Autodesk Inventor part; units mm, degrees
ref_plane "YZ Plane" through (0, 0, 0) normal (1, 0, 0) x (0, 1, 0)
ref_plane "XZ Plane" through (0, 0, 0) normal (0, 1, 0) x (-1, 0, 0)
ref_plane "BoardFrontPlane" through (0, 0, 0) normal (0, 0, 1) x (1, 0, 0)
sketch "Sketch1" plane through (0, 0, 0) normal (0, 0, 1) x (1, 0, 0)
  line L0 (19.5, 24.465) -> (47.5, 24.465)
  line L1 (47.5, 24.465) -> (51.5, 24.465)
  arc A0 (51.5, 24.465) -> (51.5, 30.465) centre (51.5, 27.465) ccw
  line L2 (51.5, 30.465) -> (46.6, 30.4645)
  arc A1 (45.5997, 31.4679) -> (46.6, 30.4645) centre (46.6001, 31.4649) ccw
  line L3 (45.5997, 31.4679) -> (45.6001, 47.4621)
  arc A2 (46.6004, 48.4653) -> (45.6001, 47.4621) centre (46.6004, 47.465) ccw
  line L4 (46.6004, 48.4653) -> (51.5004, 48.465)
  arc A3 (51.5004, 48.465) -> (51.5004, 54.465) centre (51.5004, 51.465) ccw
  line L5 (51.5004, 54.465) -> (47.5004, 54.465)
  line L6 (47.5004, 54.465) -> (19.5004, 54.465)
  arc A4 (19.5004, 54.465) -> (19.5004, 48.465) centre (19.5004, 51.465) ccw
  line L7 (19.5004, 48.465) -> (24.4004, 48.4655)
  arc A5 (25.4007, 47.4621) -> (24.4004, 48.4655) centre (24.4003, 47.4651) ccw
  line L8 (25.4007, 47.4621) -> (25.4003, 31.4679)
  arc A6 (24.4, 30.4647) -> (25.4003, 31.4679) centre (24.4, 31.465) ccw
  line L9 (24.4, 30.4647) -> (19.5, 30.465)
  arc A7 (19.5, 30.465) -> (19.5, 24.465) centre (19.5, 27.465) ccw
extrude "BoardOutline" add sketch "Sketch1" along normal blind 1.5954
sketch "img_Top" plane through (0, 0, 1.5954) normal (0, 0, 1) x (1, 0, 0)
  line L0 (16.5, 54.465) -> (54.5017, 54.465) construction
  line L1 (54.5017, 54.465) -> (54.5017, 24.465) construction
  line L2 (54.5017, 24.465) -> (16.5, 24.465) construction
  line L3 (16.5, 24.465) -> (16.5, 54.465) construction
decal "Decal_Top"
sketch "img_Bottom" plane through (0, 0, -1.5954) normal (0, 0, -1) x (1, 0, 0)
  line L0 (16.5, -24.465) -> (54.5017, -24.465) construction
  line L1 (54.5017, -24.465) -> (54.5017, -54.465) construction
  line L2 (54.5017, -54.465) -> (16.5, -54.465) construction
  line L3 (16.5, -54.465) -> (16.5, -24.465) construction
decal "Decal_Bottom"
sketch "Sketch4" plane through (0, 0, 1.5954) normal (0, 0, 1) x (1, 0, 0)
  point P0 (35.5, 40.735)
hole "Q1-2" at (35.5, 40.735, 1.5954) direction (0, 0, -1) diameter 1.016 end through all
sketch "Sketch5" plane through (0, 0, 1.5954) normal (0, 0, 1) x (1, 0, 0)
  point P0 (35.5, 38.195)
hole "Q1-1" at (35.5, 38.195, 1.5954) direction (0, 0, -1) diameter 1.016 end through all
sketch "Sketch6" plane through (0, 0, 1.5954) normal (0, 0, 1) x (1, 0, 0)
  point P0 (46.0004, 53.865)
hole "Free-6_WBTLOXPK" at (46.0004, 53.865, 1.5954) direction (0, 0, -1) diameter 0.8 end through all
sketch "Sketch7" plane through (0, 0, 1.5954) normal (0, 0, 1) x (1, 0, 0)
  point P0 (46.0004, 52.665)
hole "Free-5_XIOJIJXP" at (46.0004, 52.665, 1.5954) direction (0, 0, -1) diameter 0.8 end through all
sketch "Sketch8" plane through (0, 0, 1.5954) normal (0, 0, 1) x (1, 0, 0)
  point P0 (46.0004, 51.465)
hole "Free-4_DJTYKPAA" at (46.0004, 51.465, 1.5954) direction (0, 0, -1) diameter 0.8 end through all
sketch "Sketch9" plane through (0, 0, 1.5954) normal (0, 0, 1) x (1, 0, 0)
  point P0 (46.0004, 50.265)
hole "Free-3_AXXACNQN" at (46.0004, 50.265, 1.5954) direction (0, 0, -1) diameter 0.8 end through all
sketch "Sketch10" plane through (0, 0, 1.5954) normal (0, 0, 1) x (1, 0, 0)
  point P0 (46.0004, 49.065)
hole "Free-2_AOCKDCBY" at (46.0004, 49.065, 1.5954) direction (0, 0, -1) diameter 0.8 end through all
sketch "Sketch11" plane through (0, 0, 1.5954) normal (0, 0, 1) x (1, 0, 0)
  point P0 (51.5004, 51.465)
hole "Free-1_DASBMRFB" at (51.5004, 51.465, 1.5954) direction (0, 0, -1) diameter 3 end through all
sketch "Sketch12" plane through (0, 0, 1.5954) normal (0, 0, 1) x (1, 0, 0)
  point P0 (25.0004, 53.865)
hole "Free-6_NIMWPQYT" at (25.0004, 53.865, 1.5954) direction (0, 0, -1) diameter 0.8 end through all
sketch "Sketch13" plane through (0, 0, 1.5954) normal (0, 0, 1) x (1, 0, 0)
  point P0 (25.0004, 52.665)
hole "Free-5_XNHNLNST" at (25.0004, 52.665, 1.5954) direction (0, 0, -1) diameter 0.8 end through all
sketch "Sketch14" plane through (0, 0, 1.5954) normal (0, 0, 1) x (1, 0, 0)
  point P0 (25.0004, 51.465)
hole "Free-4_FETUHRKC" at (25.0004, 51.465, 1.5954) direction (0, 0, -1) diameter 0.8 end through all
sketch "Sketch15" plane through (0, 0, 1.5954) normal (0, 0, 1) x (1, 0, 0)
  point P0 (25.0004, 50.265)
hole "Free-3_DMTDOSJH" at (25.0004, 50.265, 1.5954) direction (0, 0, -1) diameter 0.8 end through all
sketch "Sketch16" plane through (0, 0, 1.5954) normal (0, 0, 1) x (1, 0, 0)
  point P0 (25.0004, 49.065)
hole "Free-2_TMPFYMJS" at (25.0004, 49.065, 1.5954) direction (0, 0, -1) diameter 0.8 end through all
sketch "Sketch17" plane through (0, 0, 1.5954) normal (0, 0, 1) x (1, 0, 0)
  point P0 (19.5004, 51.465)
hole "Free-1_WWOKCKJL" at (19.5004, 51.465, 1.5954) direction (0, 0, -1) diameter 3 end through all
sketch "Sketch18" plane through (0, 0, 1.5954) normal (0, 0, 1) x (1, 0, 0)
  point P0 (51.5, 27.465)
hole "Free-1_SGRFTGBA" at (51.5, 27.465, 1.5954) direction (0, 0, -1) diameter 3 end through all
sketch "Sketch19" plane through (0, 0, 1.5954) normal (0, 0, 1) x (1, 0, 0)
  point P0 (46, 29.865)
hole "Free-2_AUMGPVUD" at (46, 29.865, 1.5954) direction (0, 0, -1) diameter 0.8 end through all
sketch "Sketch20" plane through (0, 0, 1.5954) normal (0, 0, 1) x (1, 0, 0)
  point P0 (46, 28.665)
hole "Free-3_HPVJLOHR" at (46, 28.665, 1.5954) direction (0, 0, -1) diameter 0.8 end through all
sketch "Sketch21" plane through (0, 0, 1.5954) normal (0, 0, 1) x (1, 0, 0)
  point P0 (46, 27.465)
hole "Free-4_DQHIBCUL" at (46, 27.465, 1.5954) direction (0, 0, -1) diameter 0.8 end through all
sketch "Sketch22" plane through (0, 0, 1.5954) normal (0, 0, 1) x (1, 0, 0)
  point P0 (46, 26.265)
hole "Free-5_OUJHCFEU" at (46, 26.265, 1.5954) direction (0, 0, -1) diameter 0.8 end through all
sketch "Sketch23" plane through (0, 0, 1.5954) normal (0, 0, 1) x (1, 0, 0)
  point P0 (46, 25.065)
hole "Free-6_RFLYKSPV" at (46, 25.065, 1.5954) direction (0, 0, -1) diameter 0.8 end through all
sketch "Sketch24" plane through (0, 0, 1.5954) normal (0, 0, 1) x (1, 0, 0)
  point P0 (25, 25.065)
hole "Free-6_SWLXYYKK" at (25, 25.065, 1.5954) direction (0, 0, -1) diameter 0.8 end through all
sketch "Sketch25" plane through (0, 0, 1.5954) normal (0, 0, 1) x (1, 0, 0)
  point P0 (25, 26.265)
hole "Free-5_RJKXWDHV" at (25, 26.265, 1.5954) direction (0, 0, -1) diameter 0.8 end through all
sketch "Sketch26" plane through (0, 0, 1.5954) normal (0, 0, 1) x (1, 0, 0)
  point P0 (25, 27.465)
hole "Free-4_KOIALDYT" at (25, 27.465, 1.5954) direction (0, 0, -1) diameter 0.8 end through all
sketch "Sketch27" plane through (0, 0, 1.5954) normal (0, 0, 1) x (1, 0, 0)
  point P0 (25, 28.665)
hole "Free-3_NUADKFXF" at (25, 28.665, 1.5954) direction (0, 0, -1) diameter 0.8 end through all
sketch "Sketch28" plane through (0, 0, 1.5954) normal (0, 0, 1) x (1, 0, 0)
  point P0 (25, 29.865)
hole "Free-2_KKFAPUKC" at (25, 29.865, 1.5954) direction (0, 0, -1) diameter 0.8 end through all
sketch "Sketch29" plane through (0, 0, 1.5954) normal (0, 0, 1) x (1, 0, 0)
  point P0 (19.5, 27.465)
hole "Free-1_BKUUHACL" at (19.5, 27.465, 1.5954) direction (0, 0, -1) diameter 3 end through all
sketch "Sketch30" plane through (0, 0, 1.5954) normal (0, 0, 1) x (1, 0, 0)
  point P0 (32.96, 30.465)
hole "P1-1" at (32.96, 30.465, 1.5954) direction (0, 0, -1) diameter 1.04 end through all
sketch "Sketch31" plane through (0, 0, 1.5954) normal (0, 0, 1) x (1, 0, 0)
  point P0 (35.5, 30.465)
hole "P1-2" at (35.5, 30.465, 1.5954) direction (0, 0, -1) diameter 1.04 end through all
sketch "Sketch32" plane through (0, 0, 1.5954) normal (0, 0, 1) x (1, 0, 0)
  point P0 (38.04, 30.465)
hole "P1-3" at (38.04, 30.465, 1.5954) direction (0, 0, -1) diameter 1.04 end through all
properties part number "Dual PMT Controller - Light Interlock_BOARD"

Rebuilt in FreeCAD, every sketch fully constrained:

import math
import FreeCAD as App
import Part
import Sketcher

V = App.Vector

doc = App.newDocument("Part")
body = doc.addObject("PartDesign::Body", "Body")

# Sketch on XY plane
sketch1 = doc.addObject("Sketcher::SketchObject", "Sketch")
body.addObject(sketch1)
sketch1.AttachmentSupport = (doc.XY_Plane, [""])
sketch1.MapMode = "FlatFace"
sketch1.addGeometry([
    Part.ArcOfCircle(Part.Circle(V(19.5, 27.465, 0), V(0, 0, 1), 3), math.radians(90), math.radians(270)),  # 0
    Part.LineSegment(V(19.5, 24.465, 0), V(51.5, 24.465, 0)),  # 1
    Part.ArcOfCircle(Part.Circle(V(51.5, 27.465, 0), V(0, 0, 1), 3), math.radians(-90), math.radians(90)),  # 2
    Part.LineSegment(V(51.5, 30.465, 0), V(46.6, 30.4645, 0)),  # 3
    Part.ArcOfCircle(Part.Circle(V(46.6001, 31.4649, 0), V(0, 0, 1), 1.000404), math.radians(179.828182), math.radians(269.994273)),  # 4
    Part.LineSegment(V(45.5997, 31.4679, 0), V(45.6001, 47.4621, 0)),  # 5
    Part.ArcOfCircle(Part.Circle(V(46.6004, 47.465, 0), V(0, 0, 1), 1.0003), math.radians(90), math.radians(180.166107)),  # 6
    Part.LineSegment(V(46.6004, 48.4653, 0), V(51.5004, 48.465, 0)),  # 7
    Part.ArcOfCircle(Part.Circle(V(51.5004, 51.465, 0), V(0, 0, 1), 3), math.radians(-90), math.radians(90)),  # 8
    Part.LineSegment(V(51.5004, 54.465, 0), V(19.5004, 54.465, 0)),  # 9
    Part.ArcOfCircle(Part.Circle(V(19.5004, 51.465, 0), V(0, 0, 1), 3), math.radians(90), math.radians(270)),  # 10
    Part.LineSegment(V(19.5004, 48.465, 0), V(24.4004, 48.4655, 0)),  # 11
    Part.ArcOfCircle(Part.Circle(V(24.4003, 47.4651, 0), V(0, 0, 1), 1.000404), math.radians(-0.171818), math.radians(89.994273)),  # 12
    Part.LineSegment(V(25.4007, 47.4621, 0), V(25.4003, 31.4679, 0)),  # 13
    Part.ArcOfCircle(Part.Circle(V(24.4, 31.465, 0), V(0, 0, 1), 1.0003), math.radians(-90), math.radians(0.166107)),  # 14
    Part.LineSegment(V(24.4, 30.4647, 0), V(19.5, 30.465, 0)),  # 15
], False)
sketch1.addConstraint([
    Sketcher.Constraint("Tangent", 0, 2, 1, 1),
    Sketcher.Constraint("Tangent", 1, 2, 2, 1),
    Sketcher.Constraint("Tangent", 2, 2, 3, 1),
    Sketcher.Constraint("Tangent", 3, 2, 4, 2),
    Sketcher.Constraint("Coincident", 4, 1, 5, 1),
    Sketcher.Constraint("Coincident", 5, 2, 6, 2),
    Sketcher.Constraint("Tangent", 6, 1, 7, 1),
    Sketcher.Constraint("Tangent", 7, 2, 8, 1),
    Sketcher.Constraint("Tangent", 8, 2, 9, 1),
    Sketcher.Constraint("Tangent", 9, 2, 10, 1),
    Sketcher.Constraint("Tangent", 10, 2, 11, 1),
    Sketcher.Constraint("Tangent", 11, 2, 12, 2),
    Sketcher.Constraint("Coincident", 12, 1, 13, 1),
    Sketcher.Constraint("Coincident", 13, 2, 14, 2),
    Sketcher.Constraint("Tangent", 14, 1, 15, 1),
    Sketcher.Constraint("Tangent", 15, 2, 0, 1),
    Sketcher.Constraint("Horizontal", 1),
    Sketcher.Constraint("Horizontal", 9),
    Sketcher.Constraint("Equal", 0, 2),
    Sketcher.Constraint("Equal", 4, 6),
    Sketcher.Constraint("Equal", 2, 8),
    Sketcher.Constraint("Equal", 8, 10),
    Sketcher.Constraint("Equal", 6, 12),
    Sketcher.Constraint("Equal", 12, 14),
    Sketcher.Constraint("Perpendicular", 3, 5),
    Sketcher.Constraint("Perpendicular", 5, 7),
    Sketcher.Constraint("Parallel", 7, 11),
    Sketcher.Constraint("Perpendicular", 11, 13),
    Sketcher.Constraint("Perpendicular", 13, 15),
    Sketcher.Constraint("Horizontal", 6, 3, 12, 3),
    Sketcher.Constraint("Horizontal", 5, 2, 12, 1),
    Sketcher.Constraint("Horizontal", 4, 1, 13, 2),
    Sketcher.Constraint("Equal", 1, 9),
    Sketcher.Constraint("Equal", 3, 7),
    Sketcher.Constraint("Equal", 7, 11),
    Sketcher.Constraint("Equal", 11, 15),
    Sketcher.Constraint("Radius", 0, 3.0),
    Sketcher.Constraint("DistanceX", 1, 1, 1, 2, 32.0),
    Sketcher.Constraint("DistanceY", 2, 3, 4, 3, 4.0),
    Sketcher.Constraint("DistanceY", 4, 3, 6, 3, 16.0),
    Sketcher.Constraint("Distance", 3, 4.9),
    Sketcher.Constraint("DistanceX", -1, 1, 0, 3, 19.5),
    Sketcher.Constraint("DistanceY", -1, 1, 0, 3, 27.465),
    Sketcher.Constraint("DistanceY", -1, 1, 4, 1, 31.468),
])
pad1 = doc.addObject("PartDesign::Pad", "Pad")
body.addObject(pad1)
pad1.Profile = sketch1
pad1.Length = 1.5954

# Sketch on XY plane
sketch2 = doc.addObject("Sketcher::SketchObject", "Sketch001")
body.addObject(sketch2)
sketch2.AttachmentSupport = (doc.XY_Plane, [""])
sketch2.MapMode = "FlatFace"
sketch2.AttachmentOffset = App.Placement(V(0, 0, 1.5954), App.Rotation())
sketch2.addGeometry(Part.Circle(V(35.5, 40.735, 0), V(0, 0, 1), 0.508), False)
sketch2.addConstraint([
    Sketcher.Constraint("Diameter", 0, 1.016),
    Sketcher.Constraint("DistanceX", -1, 1, 0, 3, 35.5),
    Sketcher.Constraint("DistanceY", -1, 1, 0, 3, 40.735),
])
doc.recompute()
hole = doc.addObject("PartDesign::Hole", "Hole")
body.addObject(hole)
hole.Profile = sketch2
hole.ThreadType = "None"
hole.Diameter = 1.016
hole.DepthType = "ThroughAll"

# Sketch on XY plane
sketch3 = doc.addObject("Sketcher::SketchObject", "Sketch002")
body.addObject(sketch3)
sketch3.AttachmentSupport = (doc.XY_Plane, [""])
sketch3.MapMode = "FlatFace"
sketch3.AttachmentOffset = App.Placement(V(0, 0, 1.5954), App.Rotation())
sketch3.addGeometry(Part.Circle(V(35.5, 38.195, 0), V(0, 0, 1), 0.508), False)
sketch3.addConstraint([
    Sketcher.Constraint("Diameter", 0, 1.016),
    Sketcher.Constraint("DistanceX", -1, 1, 0, 3, 35.5),
    Sketcher.Constraint("DistanceY", -1, 1, 0, 3, 38.195),
])
doc.recompute()
hole2 = doc.addObject("PartDesign::Hole", "Hole001")
body.addObject(hole2)
hole2.Profile = sketch3
hole2.ThreadType = "None"
hole2.Diameter = 1.016
hole2.DepthType = "ThroughAll"

# Sketch on XY plane
sketch4 = doc.addObject("Sketcher::SketchObject", "Sketch003")
body.addObject(sketch4)
sketch4.AttachmentSupport = (doc.XY_Plane, [""])
sketch4.MapMode = "FlatFace"
sketch4.AttachmentOffset = App.Placement(V(0, 0, 1.5954), App.Rotation())
sketch4.addGeometry(Part.Circle(V(46.0004, 53.865, 0), V(0, 0, 1), 0.4), False)
sketch4.addConstraint([
    Sketcher.Constraint("Diameter", 0, 0.8),
    Sketcher.Constraint("DistanceY", -1, 1, 0, 3, 53.865),
    Sketcher.Constraint("DistanceX", -1, 1, 0, 3, 46.0004),
])
doc.recompute()
hole3 = doc.addObject("PartDesign::Hole", "Hole002")
body.addObject(hole3)
hole3.Profile = sketch4
hole3.ThreadType = "None"
hole3.Diameter = 0.8
hole3.DepthType = "ThroughAll"

# Sketch on XY plane
sketch5 = doc.addObject("Sketcher::SketchObject", "Sketch004")
body.addObject(sketch5)
sketch5.AttachmentSupport = (doc.XY_Plane, [""])
sketch5.MapMode = "FlatFace"
sketch5.AttachmentOffset = App.Placement(V(0, 0, 1.5954), App.Rotation())
sketch5.addGeometry(Part.Circle(V(46.0004, 52.665, 0), V(0, 0, 1), 0.4), False)
sketch5.addConstraint([
    Sketcher.Constraint("Diameter", 0, 0.8),
    Sketcher.Constraint("DistanceY", -1, 1, 0, 3, 52.665),
    Sketcher.Constraint("DistanceX", -1, 1, 0, 3, 46.0004),
])
doc.recompute()
hole4 = doc.addObject("PartDesign::Hole", "Hole003")
body.addObject(hole4)
hole4.Profile = sketch5
hole4.ThreadType = "None"
hole4.Diameter = 0.8
hole4.DepthType = "ThroughAll"

# Sketch on XY plane
sketch6 = doc.addObject("Sketcher::SketchObject", "Sketch005")
body.addObject(sketch6)
sketch6.AttachmentSupport = (doc.XY_Plane, [""])
sketch6.MapMode = "FlatFace"
sketch6.AttachmentOffset = App.Placement(V(0, 0, 1.5954), App.Rotation())
sketch6.addGeometry(Part.Circle(V(46.0004, 51.465, 0), V(0, 0, 1), 0.4), False)
sketch6.addConstraint([
    Sketcher.Constraint("Diameter", 0, 0.8),
    Sketcher.Constraint("DistanceY", -1, 1, 0, 3, 51.465),
    Sketcher.Constraint("DistanceX", -1, 1, 0, 3, 46.0004),
])
doc.recompute()
hole5 = doc.addObject("PartDesign::Hole", "Hole004")
body.addObject(hole5)
hole5.Profile = sketch6
hole5.ThreadType = "None"
hole5.Diameter = 0.8
hole5.DepthType = "ThroughAll"

# Sketch on XY plane
sketch7 = doc.addObject("Sketcher::SketchObject", "Sketch006")
body.addObject(sketch7)
sketch7.AttachmentSupport = (doc.XY_Plane, [""])
sketch7.MapMode = "FlatFace"
sketch7.AttachmentOffset = App.Placement(V(0, 0, 1.5954), App.Rotation())
sketch7.addGeometry(Part.Circle(V(46.0004, 50.265, 0), V(0, 0, 1), 0.4), False)
sketch7.addConstraint([
    Sketcher.Constraint("Diameter", 0, 0.8),
    Sketcher.Constraint("DistanceY", -1, 1, 0, 3, 50.265),
    Sketcher.Constraint("DistanceX", -1, 1, 0, 3, 46.0004),
])
doc.recompute()
hole6 = doc.addObject("PartDesign::Hole", "Hole005")
body.addObject(hole6)
hole6.Profile = sketch7
hole6.ThreadType = "None"
hole6.Diameter = 0.8
hole6.DepthType = "ThroughAll"

# Sketch on XY plane
sketch8 = doc.addObject("Sketcher::SketchObject", "Sketch007")
body.addObject(sketch8)
sketch8.AttachmentSupport = (doc.XY_Plane, [""])
sketch8.MapMode = "FlatFace"
sketch8.AttachmentOffset = App.Placement(V(0, 0, 1.5954), App.Rotation())
sketch8.addGeometry(Part.Circle(V(46.0004, 49.065, 0), V(0, 0, 1), 0.4), False)
sketch8.addConstraint([
    Sketcher.Constraint("Diameter", 0, 0.8),
    Sketcher.Constraint("DistanceY", -1, 1, 0, 3, 49.065),
    Sketcher.Constraint("DistanceX", -1, 1, 0, 3, 46.0004),
])
doc.recompute()
hole7 = doc.addObject("PartDesign::Hole", "Hole006")
body.addObject(hole7)
hole7.Profile = sketch8
hole7.ThreadType = "None"
hole7.Diameter = 0.8
hole7.DepthType = "ThroughAll"

# Sketch on XY plane
sketch9 = doc.addObject("Sketcher::SketchObject", "Sketch008")
body.addObject(sketch9)
sketch9.AttachmentSupport = (doc.XY_Plane, [""])
sketch9.MapMode = "FlatFace"
sketch9.AttachmentOffset = App.Placement(V(0, 0, 1.5954), App.Rotation())
sketch9.addGeometry(Part.Circle(V(51.5004, 51.465, 0), V(0, 0, 1), 1.5), False)
sketch9.addConstraint([
    Sketcher.Constraint("Diameter", 0, 3.0),
    Sketcher.Constraint("DistanceY", -1, 1, 0, 3, 51.465),
    Sketcher.Constraint("DistanceX", -1, 1, 0, 3, 51.5004),
])
doc.recompute()
hole8 = doc.addObject("PartDesign::Hole", "Hole007")
body.addObject(hole8)
hole8.Profile = sketch9
hole8.ThreadType = "None"
hole8.Diameter = 3
hole8.DepthType = "ThroughAll"

# Sketch on XY plane
sketch10 = doc.addObject("Sketcher::SketchObject", "Sketch009")
body.addObject(sketch10)
sketch10.AttachmentSupport = (doc.XY_Plane, [""])
sketch10.MapMode = "FlatFace"
sketch10.AttachmentOffset = App.Placement(V(0, 0, 1.5954), App.Rotation())
sketch10.addGeometry(Part.Circle(V(25.0004, 53.865, 0), V(0, 0, 1), 0.4), False)
sketch10.addConstraint([
    Sketcher.Constraint("Diameter", 0, 0.8),
    Sketcher.Constraint("DistanceY", -1, 1, 0, 3, 53.865),
    Sketcher.Constraint("DistanceX", -1, 1, 0, 3, 25.0004),
])
doc.recompute()
hole9 = doc.addObject("PartDesign::Hole", "Hole008")
body.addObject(hole9)
hole9.Profile = sketch10
hole9.ThreadType = "None"
hole9.Diameter = 0.8
hole9.DepthType = "ThroughAll"

# Sketch on XY plane
sketch11 = doc.addObject("Sketcher::SketchObject", "Sketch010")
body.addObject(sketch11)
sketch11.AttachmentSupport = (doc.XY_Plane, [""])
sketch11.MapMode = "FlatFace"
sketch11.AttachmentOffset = App.Placement(V(0, 0, 1.5954), App.Rotation())
sketch11.addGeometry(Part.Circle(V(25.0004, 52.665, 0), V(0, 0, 1), 0.4), False)
sketch11.addConstraint([
    Sketcher.Constraint("Diameter", 0, 0.8),
    Sketcher.Constraint("DistanceY", -1, 1, 0, 3, 52.665),
    Sketcher.Constraint("DistanceX", -1, 1, 0, 3, 25.0004),
])
doc.recompute()
hole10 = doc.addObject("PartDesign::Hole", "Hole009")
body.addObject(hole10)
hole10.Profile = sketch11
hole10.ThreadType = "None"
hole10.Diameter = 0.8
hole10.DepthType = "ThroughAll"

# Sketch on XY plane
sketch12 = doc.addObject("Sketcher::SketchObject", "Sketch011")
body.addObject(sketch12)
sketch12.AttachmentSupport = (doc.XY_Plane, [""])
sketch12.MapMode = "FlatFace"
sketch12.AttachmentOffset = App.Placement(V(0, 0, 1.5954), App.Rotation())
sketch12.addGeometry(Part.Circle(V(25.0004, 51.465, 0), V(0, 0, 1), 0.4), False)
sketch12.addConstraint([
    Sketcher.Constraint("Diameter", 0, 0.8),
    Sketcher.Constraint("DistanceY", -1, 1, 0, 3, 51.465),
    Sketcher.Constraint("DistanceX", -1, 1, 0, 3, 25.0004),
])
doc.recompute()
hole11 = doc.addObject("PartDesign::Hole", "Hole010")
body.addObject(hole11)
hole11.Profile = sketch12
hole11.ThreadType = "None"
hole11.Diameter = 0.8
hole11.DepthType = "ThroughAll"

# Sketch on XY plane
sketch13 = doc.addObject("Sketcher::SketchObject", "Sketch012")
body.addObject(sketch13)
sketch13.AttachmentSupport = (doc.XY_Plane, [""])
sketch13.MapMode = "FlatFace"
sketch13.AttachmentOffset = App.Placement(V(0, 0, 1.5954), App.Rotation())
sketch13.addGeometry(Part.Circle(V(25.0004, 50.265, 0), V(0, 0, 1), 0.4), False)
sketch13.addConstraint([
    Sketcher.Constraint("Diameter", 0, 0.8),
    Sketcher.Constraint("DistanceY", -1, 1, 0, 3, 50.265),
    Sketcher.Constraint("DistanceX", -1, 1, 0, 3, 25.0004),
])
doc.recompute()
hole12 = doc.addObject("PartDesign::Hole", "Hole011")
body.addObject(hole12)
hole12.Profile = sketch13
hole12.ThreadType = "None"
hole12.Diameter = 0.8
hole12.DepthType = "ThroughAll"

# Sketch on XY plane
sketch14 = doc.addObject("Sketcher::SketchObject", "Sketch013")
body.addObject(sketch14)
sketch14.AttachmentSupport = (doc.XY_Plane, [""])
sketch14.MapMode = "FlatFace"
sketch14.AttachmentOffset = App.Placement(V(0, 0, 1.5954), App.Rotation())
sketch14.addGeometry(Part.Circle(V(25.0004, 49.065, 0), V(0, 0, 1), 0.4), False)
sketch14.addConstraint([
    Sketcher.Constraint("Diameter", 0, 0.8),
    Sketcher.Constraint("DistanceY", -1, 1, 0, 3, 49.065),
    Sketcher.Constraint("DistanceX", -1, 1, 0, 3, 25.0004),
])
doc.recompute()
hole13 = doc.addObject("PartDesign::Hole", "Hole012")
body.addObject(hole13)
hole13.Profile = sketch14
hole13.ThreadType = "None"
hole13.Diameter = 0.8
hole13.DepthType = "ThroughAll"

# Sketch on XY plane
sketch15 = doc.addObject("Sketcher::SketchObject", "Sketch014")
body.addObject(sketch15)
sketch15.AttachmentSupport = (doc.XY_Plane, [""])
sketch15.MapMode = "FlatFace"
sketch15.AttachmentOffset = App.Placement(V(0, 0, 1.5954), App.Rotation())
sketch15.addGeometry(Part.Circle(V(19.5004, 51.465, 0), V(0, 0, 1), 1.5), False)
sketch15.addConstraint([
    Sketcher.Constraint("Diameter", 0, 3.0),
    Sketcher.Constraint("DistanceY", -1, 1, 0, 3, 51.465),
    Sketcher.Constraint("DistanceX", -1, 1, 0, 3, 19.5004),
])
doc.recompute()
hole14 = doc.addObject("PartDesign::Hole", "Hole013")
body.addObject(hole14)
hole14.Profile = sketch15
hole14.ThreadType = "None"
hole14.Diameter = 3
hole14.DepthType = "ThroughAll"

# Sketch on XY plane
sketch16 = doc.addObject("Sketcher::SketchObject", "Sketch015")
body.addObject(sketch16)
sketch16.AttachmentSupport = (doc.XY_Plane, [""])
sketch16.MapMode = "FlatFace"
sketch16.AttachmentOffset = App.Placement(V(0, 0, 1.5954), App.Rotation())
sketch16.addGeometry(Part.Circle(V(51.5, 27.465, 0), V(0, 0, 1), 1.5), False)
sketch16.addConstraint([
    Sketcher.Constraint("Diameter", 0, 3.0),
    Sketcher.Constraint("DistanceX", -1, 1, 0, 3, 51.5),
    Sketcher.Constraint("DistanceY", -1, 1, 0, 3, 27.465),
])
doc.recompute()
hole15 = doc.addObject("PartDesign::Hole", "Hole014")
body.addObject(hole15)
hole15.Profile = sketch16
hole15.ThreadType = "None"
hole15.Diameter = 3
hole15.DepthType = "ThroughAll"

# Sketch on XY plane
sketch17 = doc.addObject("Sketcher::SketchObject", "Sketch016")
body.addObject(sketch17)
sketch17.AttachmentSupport = (doc.XY_Plane, [""])
sketch17.MapMode = "FlatFace"
sketch17.AttachmentOffset = App.Placement(V(0, 0, 1.5954), App.Rotation())
sketch17.addGeometry(Part.Circle(V(46, 29.865, 0), V(0, 0, 1), 0.4), False)
sketch17.addConstraint([
    Sketcher.Constraint("Diameter", 0, 0.8),
    Sketcher.Constraint("DistanceX", -1, 1, 0, 3, 46.0),
    Sketcher.Constraint("DistanceY", -1, 1, 0, 3, 29.865),
])
doc.recompute()
hole16 = doc.addObject("PartDesign::Hole", "Hole015")
body.addObject(hole16)
hole16.Profile = sketch17
hole16.ThreadType = "None"
hole16.Diameter = 0.8
hole16.DepthType = "ThroughAll"

# Sketch on XY plane
sketch18 = doc.addObject("Sketcher::SketchObject", "Sketch017")
body.addObject(sketch18)
sketch18.AttachmentSupport = (doc.XY_Plane, [""])
sketch18.MapMode = "FlatFace"
sketch18.AttachmentOffset = App.Placement(V(0, 0, 1.5954), App.Rotation())
sketch18.addGeometry(Part.Circle(V(46, 28.665, 0), V(0, 0, 1), 0.4), False)
sketch18.addConstraint([
    Sketcher.Constraint("Diameter", 0, 0.8),
    Sketcher.Constraint("DistanceX", -1, 1, 0, 3, 46.0),
    Sketcher.Constraint("DistanceY", -1, 1, 0, 3, 28.665),
])
doc.recompute()
hole17 = doc.addObject("PartDesign::Hole", "Hole016")
body.addObject(hole17)
hole17.Profile = sketch18
hole17.ThreadType = "None"
hole17.Diameter = 0.8
hole17.DepthType = "ThroughAll"

# Sketch on XY plane
sketch19 = doc.addObject("Sketcher::SketchObject", "Sketch018")
body.addObject(sketch19)
sketch19.AttachmentSupport = (doc.XY_Plane, [""])
sketch19.MapMode = "FlatFace"
sketch19.AttachmentOffset = App.Placement(V(0, 0, 1.5954), App.Rotation())
sketch19.addGeometry(Part.Circle(V(46, 27.465, 0), V(0, 0, 1), 0.4), False)
sketch19.addConstraint([
    Sketcher.Constraint("Diameter", 0, 0.8),
    Sketcher.Constraint("DistanceX", -1, 1, 0, 3, 46.0),
    Sketcher.Constraint("DistanceY", -1, 1, 0, 3, 27.465),
])
doc.recompute()
hole18 = doc.addObject("PartDesign::Hole", "Hole017")
body.addObject(hole18)
hole18.Profile = sketch19
hole18.ThreadType = "None"
hole18.Diameter = 0.8
hole18.DepthType = "ThroughAll"

# Sketch on XY plane
sketch20 = doc.addObject("Sketcher::SketchObject", "Sketch019")
body.addObject(sketch20)
sketch20.AttachmentSupport = (doc.XY_Plane, [""])
sketch20.MapMode = "FlatFace"
sketch20.AttachmentOffset = App.Placement(V(0, 0, 1.5954), App.Rotation())
sketch20.addGeometry(Part.Circle(V(46, 26.265, 0), V(0, 0, 1), 0.4), False)
sketch20.addConstraint([
    Sketcher.Constraint("Diameter", 0, 0.8),
    Sketcher.Constraint("DistanceX", -1, 1, 0, 3, 46.0),
    Sketcher.Constraint("DistanceY", -1, 1, 0, 3, 26.265),
])
doc.recompute()
hole19 = doc.addObject("PartDesign::Hole", "Hole018")
body.addObject(hole19)
hole19.Profile = sketch20
hole19.ThreadType = "None"
hole19.Diameter = 0.8
hole19.DepthType = "ThroughAll"

# Sketch on XY plane
sketch21 = doc.addObject("Sketcher::SketchObject", "Sketch020")
body.addObject(sketch21)
sketch21.AttachmentSupport = (doc.XY_Plane, [""])
sketch21.MapMode = "FlatFace"
sketch21.AttachmentOffset = App.Placement(V(0, 0, 1.5954), App.Rotation())
sketch21.addGeometry(Part.Circle(V(46, 25.065, 0), V(0, 0, 1), 0.4), False)
sketch21.addConstraint([
    Sketcher.Constraint("Diameter", 0, 0.8),
    Sketcher.Constraint("DistanceX", -1, 1, 0, 3, 46.0),
    Sketcher.Constraint("DistanceY", -1, 1, 0, 3, 25.065),
])
doc.recompute()
hole20 = doc.addObject("PartDesign::Hole", "Hole019")
body.addObject(hole20)
hole20.Profile = sketch21
hole20.ThreadType = "None"
hole20.Diameter = 0.8
hole20.DepthType = "ThroughAll"

# Sketch on XY plane
sketch22 = doc.addObject("Sketcher::SketchObject", "Sketch021")
body.addObject(sketch22)
sketch22.AttachmentSupport = (doc.XY_Plane, [""])
sketch22.MapMode = "FlatFace"
sketch22.AttachmentOffset = App.Placement(V(0, 0, 1.5954), App.Rotation())
sketch22.addGeometry(Part.Circle(V(25, 25.065, 0), V(0, 0, 1), 0.4), False)
sketch22.addConstraint([
    Sketcher.Constraint("Diameter", 0, 0.8),
    Sketcher.Constraint("DistanceX", -1, 1, 0, 3, 25.0),
    Sketcher.Constraint("DistanceY", -1, 1, 0, 3, 25.065),
])
doc.recompute()
hole21 = doc.addObject("PartDesign::Hole", "Hole020")
body.addObject(hole21)
hole21.Profile = sketch22
hole21.ThreadType = "None"
hole21.Diameter = 0.8
hole21.DepthType = "ThroughAll"

# Sketch on XY plane
sketch23 = doc.addObject("Sketcher::SketchObject", "Sketch022")
body.addObject(sketch23)
sketch23.AttachmentSupport = (doc.XY_Plane, [""])
sketch23.MapMode = "FlatFace"
sketch23.AttachmentOffset = App.Placement(V(0, 0, 1.5954), App.Rotation())
sketch23.addGeometry(Part.Circle(V(25, 26.265, 0), V(0, 0, 1), 0.4), False)
sketch23.addConstraint([
    Sketcher.Constraint("Diameter", 0, 0.8),
    Sketcher.Constraint("DistanceX", -1, 1, 0, 3, 25.0),
    Sketcher.Constraint("DistanceY", -1, 1, 0, 3, 26.265),
])
doc.recompute()
hole22 = doc.addObject("PartDesign::Hole", "Hole021")
body.addObject(hole22)
hole22.Profile = sketch23
hole22.ThreadType = "None"
hole22.Diameter = 0.8
hole22.DepthType = "ThroughAll"

# Sketch on XY plane
sketch24 = doc.addObject("Sketcher::SketchObject", "Sketch023")
body.addObject(sketch24)
sketch24.AttachmentSupport = (doc.XY_Plane, [""])
sketch24.MapMode = "FlatFace"
sketch24.AttachmentOffset = App.Placement(V(0, 0, 1.5954), App.Rotation())
sketch24.addGeometry(Part.Circle(V(25, 27.465, 0), V(0, 0, 1), 0.4), False)
sketch24.addConstraint([
    Sketcher.Constraint("Diameter", 0, 0.8),
    Sketcher.Constraint("DistanceX", -1, 1, 0, 3, 25.0),
    Sketcher.Constraint("DistanceY", -1, 1, 0, 3, 27.465),
])
doc.recompute()
hole23 = doc.addObject("PartDesign::Hole", "Hole022")
body.addObject(hole23)
hole23.Profile = sketch24
hole23.ThreadType = "None"
hole23.Diameter = 0.8
hole23.DepthType = "ThroughAll"

# Sketch on XY plane
sketch25 = doc.addObject("Sketcher::SketchObject", "Sketch024")
body.addObject(sketch25)
sketch25.AttachmentSupport = (doc.XY_Plane, [""])
sketch25.MapMode = "FlatFace"
sketch25.AttachmentOffset = App.Placement(V(0, 0, 1.5954), App.Rotation())
sketch25.addGeometry(Part.Circle(V(25, 28.665, 0), V(0, 0, 1), 0.4), False)
sketch25.addConstraint([
    Sketcher.Constraint("Diameter", 0, 0.8),
    Sketcher.Constraint("DistanceX", -1, 1, 0, 3, 25.0),
    Sketcher.Constraint("DistanceY", -1, 1, 0, 3, 28.665),
])
doc.recompute()
hole24 = doc.addObject("PartDesign::Hole", "Hole023")
body.addObject(hole24)
hole24.Profile = sketch25
hole24.ThreadType = "None"
hole24.Diameter = 0.8
hole24.DepthType = "ThroughAll"

# Sketch on XY plane
sketch26 = doc.addObject("Sketcher::SketchObject", "Sketch025")
body.addObject(sketch26)
sketch26.AttachmentSupport = (doc.XY_Plane, [""])
sketch26.MapMode = "FlatFace"
sketch26.AttachmentOffset = App.Placement(V(0, 0, 1.5954), App.Rotation())
sketch26.addGeometry(Part.Circle(V(25, 29.865, 0), V(0, 0, 1), 0.4), False)
sketch26.addConstraint([
    Sketcher.Constraint("Diameter", 0, 0.8),
    Sketcher.Constraint("DistanceX", -1, 1, 0, 3, 25.0),
    Sketcher.Constraint("DistanceY", -1, 1, 0, 3, 29.865),
])
doc.recompute()
hole25 = doc.addObject("PartDesign::Hole", "Hole024")
body.addObject(hole25)
hole25.Profile = sketch26
hole25.ThreadType = "None"
hole25.Diameter = 0.8
hole25.DepthType = "ThroughAll"

# Sketch on XY plane
sketch27 = doc.addObject("Sketcher::SketchObject", "Sketch026")
body.addObject(sketch27)
sketch27.AttachmentSupport = (doc.XY_Plane, [""])
sketch27.MapMode = "FlatFace"
sketch27.AttachmentOffset = App.Placement(V(0, 0, 1.5954), App.Rotation())
sketch27.addGeometry(Part.Circle(V(19.5, 27.465, 0), V(0, 0, 1), 1.5), False)
sketch27.addConstraint([
    Sketcher.Constraint("Diameter", 0, 3.0),
    Sketcher.Constraint("DistanceX", -1, 1, 0, 3, 19.5),
    Sketcher.Constraint("DistanceY", -1, 1, 0, 3, 27.465),
])
doc.recompute()
hole26 = doc.addObject("PartDesign::Hole", "Hole025")
body.addObject(hole26)
hole26.Profile = sketch27
hole26.ThreadType = "None"
hole26.Diameter = 3
hole26.DepthType = "ThroughAll"

# Sketch on XY plane
sketch28 = doc.addObject("Sketcher::SketchObject", "Sketch027")
body.addObject(sketch28)
sketch28.AttachmentSupport = (doc.XY_Plane, [""])
sketch28.MapMode = "FlatFace"
sketch28.AttachmentOffset = App.Placement(V(0, 0, 1.5954), App.Rotation())
sketch28.addGeometry(Part.Circle(V(32.96, 30.465, 0), V(0, 0, 1), 0.52), False)
sketch28.addConstraint([
    Sketcher.Constraint("Diameter", 0, 1.04),
    Sketcher.Constraint("DistanceX", -1, 1, 0, 3, 32.96),
    Sketcher.Constraint("DistanceY", -1, 1, 0, 3, 30.465),
])
doc.recompute()
hole27 = doc.addObject("PartDesign::Hole", "Hole026")
body.addObject(hole27)
hole27.Profile = sketch28
hole27.ThreadType = "None"
hole27.Diameter = 1.04
hole27.DepthType = "ThroughAll"

# Sketch on XY plane
sketch29 = doc.addObject("Sketcher::SketchObject", "Sketch028")
body.addObject(sketch29)
sketch29.AttachmentSupport = (doc.XY_Plane, [""])
sketch29.MapMode = "FlatFace"
sketch29.AttachmentOffset = App.Placement(V(0, 0, 1.5954), App.Rotation())
sketch29.addGeometry(Part.Circle(V(35.5, 30.465, 0), V(0, 0, 1), 0.52), False)
sketch29.addConstraint([
    Sketcher.Constraint("Diameter", 0, 1.04),
    Sketcher.Constraint("DistanceX", -1, 1, 0, 3, 35.5),
    Sketcher.Constraint("DistanceY", -1, 1, 0, 3, 30.465),
])
doc.recompute()
hole28 = doc.addObject("PartDesign::Hole", "Hole027")
body.addObject(hole28)
hole28.Profile = sketch29
hole28.ThreadType = "None"
hole28.Diameter = 1.04
hole28.DepthType = "ThroughAll"

# Sketch on XY plane
sketch30 = doc.addObject("Sketcher::SketchObject", "Sketch029")
body.addObject(sketch30)
sketch30.AttachmentSupport = (doc.XY_Plane, [""])
sketch30.MapMode = "FlatFace"
sketch30.AttachmentOffset = App.Placement(V(0, 0, 1.5954), App.Rotation())
sketch30.addGeometry(Part.Circle(V(38.04, 30.465, 0), V(0, 0, 1), 0.52), False)
sketch30.addConstraint([
    Sketcher.Constraint("Diameter", 0, 1.04),
    Sketcher.Constraint("DistanceX", -1, 1, 0, 3, 38.04),
    Sketcher.Constraint("DistanceY", -1, 1, 0, 3, 30.465),
])
doc.recompute()
hole29 = doc.addObject("PartDesign::Hole", "Hole028")
body.addObject(hole29)
hole29.Profile = sketch30
hole29.ThreadType = "None"
hole29.Diameter = 1.04
hole29.DepthType = "ThroughAll"

doc.recompute()
